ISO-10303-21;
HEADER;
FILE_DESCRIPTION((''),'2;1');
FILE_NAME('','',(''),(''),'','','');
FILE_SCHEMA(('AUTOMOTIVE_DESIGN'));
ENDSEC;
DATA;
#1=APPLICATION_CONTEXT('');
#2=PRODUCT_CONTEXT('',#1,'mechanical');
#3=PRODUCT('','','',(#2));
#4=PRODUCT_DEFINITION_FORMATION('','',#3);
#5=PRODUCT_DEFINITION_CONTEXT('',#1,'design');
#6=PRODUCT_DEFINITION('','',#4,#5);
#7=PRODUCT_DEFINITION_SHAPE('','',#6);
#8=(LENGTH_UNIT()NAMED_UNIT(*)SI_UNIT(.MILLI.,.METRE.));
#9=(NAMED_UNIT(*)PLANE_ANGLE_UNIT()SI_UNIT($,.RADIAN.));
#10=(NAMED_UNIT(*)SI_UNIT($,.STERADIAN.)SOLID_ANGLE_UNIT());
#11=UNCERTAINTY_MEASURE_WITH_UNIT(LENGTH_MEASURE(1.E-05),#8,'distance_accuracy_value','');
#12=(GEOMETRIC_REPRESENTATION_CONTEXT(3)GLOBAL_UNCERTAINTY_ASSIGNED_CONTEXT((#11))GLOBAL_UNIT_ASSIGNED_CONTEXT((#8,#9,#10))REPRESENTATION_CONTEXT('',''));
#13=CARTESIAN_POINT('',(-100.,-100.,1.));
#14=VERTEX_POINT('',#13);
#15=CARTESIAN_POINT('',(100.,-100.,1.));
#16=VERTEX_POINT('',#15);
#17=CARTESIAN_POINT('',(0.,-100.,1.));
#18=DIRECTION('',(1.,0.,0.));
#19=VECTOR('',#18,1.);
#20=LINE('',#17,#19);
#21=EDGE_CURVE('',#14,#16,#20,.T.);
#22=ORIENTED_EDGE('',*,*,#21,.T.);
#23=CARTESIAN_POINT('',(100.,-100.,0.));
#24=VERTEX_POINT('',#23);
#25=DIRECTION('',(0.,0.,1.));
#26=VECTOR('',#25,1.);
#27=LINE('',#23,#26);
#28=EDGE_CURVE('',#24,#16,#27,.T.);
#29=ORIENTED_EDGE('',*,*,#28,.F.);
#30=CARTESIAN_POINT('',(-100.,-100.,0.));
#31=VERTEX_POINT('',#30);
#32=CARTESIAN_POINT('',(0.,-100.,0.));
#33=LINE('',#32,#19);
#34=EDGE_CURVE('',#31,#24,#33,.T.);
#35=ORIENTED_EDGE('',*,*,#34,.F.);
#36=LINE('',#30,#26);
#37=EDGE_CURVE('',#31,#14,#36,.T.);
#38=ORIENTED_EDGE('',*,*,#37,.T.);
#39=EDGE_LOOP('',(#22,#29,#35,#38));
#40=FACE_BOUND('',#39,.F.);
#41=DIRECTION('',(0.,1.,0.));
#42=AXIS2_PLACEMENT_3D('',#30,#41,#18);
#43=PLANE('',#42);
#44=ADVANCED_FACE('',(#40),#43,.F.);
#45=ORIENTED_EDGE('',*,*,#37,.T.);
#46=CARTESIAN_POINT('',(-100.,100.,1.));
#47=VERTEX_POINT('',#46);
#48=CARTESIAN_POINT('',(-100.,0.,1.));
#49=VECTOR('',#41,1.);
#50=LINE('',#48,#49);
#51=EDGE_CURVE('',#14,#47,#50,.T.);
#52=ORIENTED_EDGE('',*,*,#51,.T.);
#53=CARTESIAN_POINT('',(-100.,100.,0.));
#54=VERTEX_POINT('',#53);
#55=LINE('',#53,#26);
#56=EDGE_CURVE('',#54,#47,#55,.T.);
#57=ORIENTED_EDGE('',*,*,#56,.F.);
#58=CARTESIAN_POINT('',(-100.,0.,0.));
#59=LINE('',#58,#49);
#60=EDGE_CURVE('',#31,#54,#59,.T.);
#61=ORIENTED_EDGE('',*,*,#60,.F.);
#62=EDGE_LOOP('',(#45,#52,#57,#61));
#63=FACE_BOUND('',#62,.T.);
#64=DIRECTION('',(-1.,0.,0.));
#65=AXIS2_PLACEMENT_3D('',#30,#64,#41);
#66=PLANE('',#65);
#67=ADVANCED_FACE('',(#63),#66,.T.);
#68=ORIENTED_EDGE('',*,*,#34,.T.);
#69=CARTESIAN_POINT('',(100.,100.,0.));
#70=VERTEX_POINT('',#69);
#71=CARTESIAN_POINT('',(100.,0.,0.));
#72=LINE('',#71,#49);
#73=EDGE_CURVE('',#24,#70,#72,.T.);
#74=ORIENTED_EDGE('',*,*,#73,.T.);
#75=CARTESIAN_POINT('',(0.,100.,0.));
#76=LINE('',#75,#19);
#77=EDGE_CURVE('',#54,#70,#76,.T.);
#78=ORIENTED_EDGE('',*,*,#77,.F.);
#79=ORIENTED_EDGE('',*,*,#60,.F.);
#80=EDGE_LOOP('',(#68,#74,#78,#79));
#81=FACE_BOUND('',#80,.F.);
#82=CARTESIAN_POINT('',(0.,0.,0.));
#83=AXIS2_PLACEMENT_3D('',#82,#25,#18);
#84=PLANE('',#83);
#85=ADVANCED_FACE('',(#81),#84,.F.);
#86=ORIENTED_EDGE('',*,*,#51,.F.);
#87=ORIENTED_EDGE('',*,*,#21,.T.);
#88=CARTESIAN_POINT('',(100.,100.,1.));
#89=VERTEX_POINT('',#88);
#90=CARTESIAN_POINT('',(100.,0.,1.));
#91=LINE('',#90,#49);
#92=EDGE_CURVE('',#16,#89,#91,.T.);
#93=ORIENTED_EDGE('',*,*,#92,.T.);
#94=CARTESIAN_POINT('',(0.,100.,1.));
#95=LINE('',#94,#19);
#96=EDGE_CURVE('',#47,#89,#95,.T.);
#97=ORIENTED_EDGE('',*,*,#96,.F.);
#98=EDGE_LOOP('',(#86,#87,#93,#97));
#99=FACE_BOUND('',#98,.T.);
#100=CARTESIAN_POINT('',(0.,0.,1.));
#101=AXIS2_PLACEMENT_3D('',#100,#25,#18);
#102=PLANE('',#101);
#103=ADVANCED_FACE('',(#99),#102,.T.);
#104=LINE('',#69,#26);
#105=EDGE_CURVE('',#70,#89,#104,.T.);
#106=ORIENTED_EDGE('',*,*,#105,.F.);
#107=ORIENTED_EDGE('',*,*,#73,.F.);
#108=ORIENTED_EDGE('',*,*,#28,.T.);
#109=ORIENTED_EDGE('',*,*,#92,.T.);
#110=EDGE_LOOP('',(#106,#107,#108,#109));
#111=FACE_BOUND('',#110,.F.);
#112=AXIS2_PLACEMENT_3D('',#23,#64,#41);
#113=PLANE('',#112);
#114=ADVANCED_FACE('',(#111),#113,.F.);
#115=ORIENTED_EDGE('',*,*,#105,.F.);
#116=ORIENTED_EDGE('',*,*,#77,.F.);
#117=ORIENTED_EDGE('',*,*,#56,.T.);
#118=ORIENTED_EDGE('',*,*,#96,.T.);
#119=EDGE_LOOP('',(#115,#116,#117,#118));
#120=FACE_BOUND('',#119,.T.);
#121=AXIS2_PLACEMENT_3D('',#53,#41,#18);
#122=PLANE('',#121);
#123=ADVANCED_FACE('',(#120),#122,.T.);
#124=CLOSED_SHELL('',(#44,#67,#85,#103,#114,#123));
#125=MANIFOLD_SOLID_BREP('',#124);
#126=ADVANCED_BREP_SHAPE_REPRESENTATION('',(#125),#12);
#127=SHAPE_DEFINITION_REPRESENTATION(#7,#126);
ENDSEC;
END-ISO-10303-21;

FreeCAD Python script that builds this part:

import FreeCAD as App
import Part
import Sketcher
from FreeCAD import Vector


def add_polygon(sketch, points):
    """Adds a closed chain of lines whose ends are joined by coincident constraints."""
    first, n = sketch.GeometryCount, len(points)
    for a, b in zip(points, points[1:] + points[:1]):
        sketch.addGeometry(Part.LineSegment(App.Vector(*a, 0), App.Vector(*b, 0)), False)
    for i in range(n):
        sketch.addConstraint(Sketcher.Constraint("Coincident", first + i, 2, first + (i + 1) % n, 1))

doc = App.newDocument("Part")
body = doc.addObject("PartDesign::Body", "Body")

sketch1 = body.newObject("Sketcher::SketchObject", "Sketch")
sketch1.AttachmentSupport = (doc.getObject("XY_Plane"), [""])
sketch1.MapMode = "FlatFace"
add_polygon(sketch1, [(-100, 100), (-100, -100), (100, -100), (100, 100)])
sketch1.addConstraint([
    Sketcher.Constraint("Vertical", 0),
    Sketcher.Constraint("Horizontal", 1),
    Sketcher.Constraint("Vertical", 2),
    Sketcher.Constraint("Horizontal", 3),
    Sketcher.Constraint("Symmetric", 0, 2, 2, 2, -1, 1),
    Sketcher.Constraint("Equal", 3, 0),
    Sketcher.Constraint("DistanceX", 1, 1, 1, 2, 200.0),
])
pad1 = body.newObject("PartDesign::Pad", "Pad")
pad1.Profile = sketch1
pad1.Length = 1

doc.recompute()
